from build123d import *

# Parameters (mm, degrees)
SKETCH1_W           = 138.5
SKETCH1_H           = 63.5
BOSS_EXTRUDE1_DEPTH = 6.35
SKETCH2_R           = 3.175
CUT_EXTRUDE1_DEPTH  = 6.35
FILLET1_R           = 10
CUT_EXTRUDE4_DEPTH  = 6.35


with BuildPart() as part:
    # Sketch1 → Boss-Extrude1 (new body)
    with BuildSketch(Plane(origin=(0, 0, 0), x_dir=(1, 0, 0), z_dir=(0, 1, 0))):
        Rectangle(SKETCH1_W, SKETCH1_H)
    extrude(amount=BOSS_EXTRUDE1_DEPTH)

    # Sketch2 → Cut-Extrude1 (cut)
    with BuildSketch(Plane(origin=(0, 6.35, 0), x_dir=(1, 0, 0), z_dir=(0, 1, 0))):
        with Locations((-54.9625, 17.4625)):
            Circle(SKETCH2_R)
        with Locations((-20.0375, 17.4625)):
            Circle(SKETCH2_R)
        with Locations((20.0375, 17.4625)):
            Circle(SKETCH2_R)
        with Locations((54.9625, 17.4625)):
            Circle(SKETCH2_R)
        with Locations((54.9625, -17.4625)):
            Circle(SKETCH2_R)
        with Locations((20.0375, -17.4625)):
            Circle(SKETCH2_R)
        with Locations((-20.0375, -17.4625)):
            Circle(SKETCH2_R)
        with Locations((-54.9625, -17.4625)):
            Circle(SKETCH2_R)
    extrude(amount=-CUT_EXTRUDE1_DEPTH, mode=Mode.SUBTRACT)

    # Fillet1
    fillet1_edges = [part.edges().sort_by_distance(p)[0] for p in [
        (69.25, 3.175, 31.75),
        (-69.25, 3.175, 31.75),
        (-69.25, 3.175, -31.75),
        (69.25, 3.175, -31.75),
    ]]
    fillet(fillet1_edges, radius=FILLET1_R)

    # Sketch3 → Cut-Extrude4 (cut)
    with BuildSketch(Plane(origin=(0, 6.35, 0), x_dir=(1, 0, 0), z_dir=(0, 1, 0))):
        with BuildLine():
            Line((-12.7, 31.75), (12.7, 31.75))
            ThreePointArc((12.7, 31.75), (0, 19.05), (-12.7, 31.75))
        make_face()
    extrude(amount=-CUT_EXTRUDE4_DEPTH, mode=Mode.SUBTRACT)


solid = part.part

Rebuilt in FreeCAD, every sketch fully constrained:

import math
import FreeCAD as App
import Part
import Sketcher
Q = App.Units.Quantity


def edges_at(feature, points):
    """Names of the edges that pass closest to the given points."""
    edges = feature.Shape.Edges
    near = lambda p: min(range(len(edges)), key=lambda i: edges[i].distToShape(Part.Vertex(*p))[0])
    return sorted({f"Edge{near(p) + 1}" for p in points})


def add_polygon(sketch, points):
    """Adds a closed chain of lines whose ends are joined by coincident constraints."""
    first, n = sketch.GeometryCount, len(points)
    for a, b in zip(points, points[1:] + points[:1]):
        sketch.addGeometry(Part.LineSegment(App.Vector(*a, 0), App.Vector(*b, 0)), False)
    for i in range(n):
        sketch.addConstraint(Sketcher.Constraint("Coincident", first + i, 2, first + (i + 1) % n, 1))

doc = App.newDocument("Part")
params = doc.addObject("Spreadsheet::Sheet", "Params")
for row, (alias, value) in enumerate([
    ("sketch1_height", "2.5 in"),
    ("pad1_length", "0.25 in"),
    ("sketch2_diameter", "0.25 in"),
    ("pocket1_length", "0.25 in"),
    ("fillet_radius", "10 mm"),
    ("sketch3_radius", "0.5 in"),
    ("pocket2_length", "0.25 in"),
], start=1):
    params.set(f"A{row}", alias)
    params.set(f"B{row}", "=" + value)
    params.setAlias(f"B{row}", alias)

body = doc.addObject("PartDesign::Body", "Body")

# Sketch on XZ plane
sketch1 = body.newObject("Sketcher::SketchObject", "Sketch")
sketch1.AttachmentSupport = (doc.getObject("XZ_Plane"), [""])
sketch1.MapMode = "FlatFace"
add_polygon(sketch1, [(-69, -32), (-69, 32), (69, 32), (69, -32)])  # lines 0-3
sketch1.addConstraint(Sketcher.Constraint("Vertical", 0))
sketch1.addConstraint(Sketcher.Constraint("Horizontal", 1))
sketch1.addConstraint(Sketcher.Constraint("Vertical", 2))
sketch1.addConstraint(Sketcher.Constraint("Horizontal", 3))
sketch1.addConstraint(Sketcher.Constraint("Symmetric", 0, 2, 2, 2, -1, 1))
sketch1.addConstraint(Sketcher.Constraint("DistanceY", 0, 1, 0, 2, Q("2.5 in")))
sketch1.addConstraint(Sketcher.Constraint("DistanceX", 1, 1, 1, 2, Q("138.5 mm")))
sketch1.setExpression("Constraints[9]", "Params.sketch1_height")
pad1 = body.newObject("PartDesign::Pad", "Pad")
pad1.Profile = sketch1
pad1.setExpression("Length", "Params.pad1_length")
pad1.Reversed = True

# Sketch on XZ plane
sketch2 = body.newObject("Sketcher::SketchObject", "Sketch001")
sketch2.AttachmentSupport = (doc.getObject("XZ_Plane"), [""])
sketch2.MapMode = "FlatFace"
sketch2.AttachmentOffset = App.Placement(App.Vector(0, 0, -0.25 * 25.4), App.Rotation())
sketch2.addGeometry(Part.Circle(App.Vector(-55, -17.5, 0), App.Vector(0, 0, 1), 3.2), False)
sketch2.addGeometry(Part.Circle(App.Vector(-20, -17.5, 0), App.Vector(0, 0, 1), 3.2), False)
sketch2.addGeometry(Part.Circle(App.Vector(20, -17.5, 0), App.Vector(0, 0, 1), 3.2), False)
sketch2.addGeometry(Part.Circle(App.Vector(55, -17.5, 0), App.Vector(0, 0, 1), 3.2), False)
sketch2.addGeometry(Part.Circle(App.Vector(55, 17.5, 0), App.Vector(0, 0, 1), 3.2), False)
sketch2.addGeometry(Part.Circle(App.Vector(20, 17.5, 0), App.Vector(0, 0, 1), 3.2), False)
sketch2.addGeometry(Part.Circle(App.Vector(-20, 17.5, 0), App.Vector(0, 0, 1), 3.2), False)
sketch2.addGeometry(Part.Circle(App.Vector(-55, 17.5, 0), App.Vector(0, 0, 1), 3.2), False)
sketch2.addConstraint(Sketcher.Constraint("Equal", 0, 1))
sketch2.addConstraint(Sketcher.Constraint("Equal", 1, 2))
sketch2.addConstraint(Sketcher.Constraint("Equal", 2, 3))
sketch2.addConstraint(Sketcher.Constraint("Equal", 3, 4))
sketch2.addConstraint(Sketcher.Constraint("Equal", 4, 5))
sketch2.addConstraint(Sketcher.Constraint("Equal", 5, 6))
sketch2.addConstraint(Sketcher.Constraint("Equal", 6, 7))
sketch2.addConstraint(Sketcher.Constraint("Symmetric", 0, 3, 4, 3, -1, 1))
sketch2.addConstraint(Sketcher.Constraint("Symmetric", 1, 3, 5, 3, -1, 1))
sketch2.addConstraint(Sketcher.Constraint("Symmetric", 2, 3, 6, 3, -1, 1))
sketch2.addConstraint(Sketcher.Constraint("Symmetric", 3, 3, 7, 3, -1, 1))
sketch2.addConstraint(Sketcher.Constraint("Symmetric", 1, 3, 2, 3, -2))
sketch2.addConstraint(Sketcher.Constraint("Symmetric", 0, 3, 3, 3, -2))
sketch2.addConstraint(Sketcher.Constraint("Horizontal", 0, 3, 1, 3))
sketch2.addConstraint(Sketcher.Constraint("Diameter", 0, Q("0.25 in")))
sketch2.addConstraint(Sketcher.Constraint("DistanceY", 0, 3, -1, 1, Q("0.6875 in")))
sketch2.addConstraint(Sketcher.Constraint("DistanceX", 0, 3, 1, 3, Q("1.375 in")))
sketch2.addConstraint(Sketcher.Constraint("DistanceX", 0, 3, -1, 1, Q("54.9625 mm")))
sketch2.setExpression("Constraints[14]", "Params.sketch2_diameter")
pocket1 = body.newObject("PartDesign::Pocket", "Pocket")
pocket1.Profile = sketch2
pocket1.setExpression("Length", "Params.pocket1_length")
pocket1.Reversed = True
doc.recompute()

fillet = body.newObject("PartDesign::Fillet", "Fillet")
fillet.Base = (pocket1, edges_at(pocket1, [
    (69.25, 3.175, 31.75),
    (-69.25, 3.175, 31.75),
    (-69.25, 3.175, -31.75),
    (69.25, 3.175, -31.75),
]))
fillet.setExpression("Radius", "Params.fillet_radius")

# Sketch on XZ plane
sketch3 = body.newObject("Sketcher::SketchObject", "Sketch002")
sketch3.AttachmentSupport = (doc.getObject("XZ_Plane"), [""])
sketch3.MapMode = "FlatFace"
sketch3.AttachmentOffset = App.Placement(App.Vector(0, 0, -0.25 * 25.4), App.Rotation())
sketch3.addGeometry(Part.LineSegment(App.Vector(13, -32, 0), App.Vector(-13, -32, 0)), False)
sketch3.addGeometry(Part.ArcOfCircle(Part.Circle(App.Vector(0, -32, 0), App.Vector(0, 0, 1), 13), math.radians(0), math.radians(180)), False)
sketch3.addConstraint(Sketcher.Constraint("Coincident", 0, 1, 1, 1))
sketch3.addConstraint(Sketcher.Constraint("Coincident", 1, 2, 0, 2))
sketch3.addConstraint(Sketcher.Constraint("Horizontal", 0))
sketch3.addConstraint(Sketcher.Constraint("PointOnObject", 1, 3, -2))
sketch3.addConstraint(Sketcher.Constraint("Horizontal", 1, 3, 0, 1))
sketch3.addConstraint(Sketcher.Constraint("Radius", 1, Q("0.5 in")))
sketch3.addConstraint(Sketcher.Constraint("DistanceY", 1, 3, -1, 1, Q("1.25 in")))
sketch3.setExpression("Constraints[5]", "Params.sketch3_radius")
pocket2 = body.newObject("PartDesign::Pocket", "Pocket001")
pocket2.Profile = sketch3
pocket2.setExpression("Length", "Params.pocket2_length")
pocket2.Reversed = True

doc.recompute()
